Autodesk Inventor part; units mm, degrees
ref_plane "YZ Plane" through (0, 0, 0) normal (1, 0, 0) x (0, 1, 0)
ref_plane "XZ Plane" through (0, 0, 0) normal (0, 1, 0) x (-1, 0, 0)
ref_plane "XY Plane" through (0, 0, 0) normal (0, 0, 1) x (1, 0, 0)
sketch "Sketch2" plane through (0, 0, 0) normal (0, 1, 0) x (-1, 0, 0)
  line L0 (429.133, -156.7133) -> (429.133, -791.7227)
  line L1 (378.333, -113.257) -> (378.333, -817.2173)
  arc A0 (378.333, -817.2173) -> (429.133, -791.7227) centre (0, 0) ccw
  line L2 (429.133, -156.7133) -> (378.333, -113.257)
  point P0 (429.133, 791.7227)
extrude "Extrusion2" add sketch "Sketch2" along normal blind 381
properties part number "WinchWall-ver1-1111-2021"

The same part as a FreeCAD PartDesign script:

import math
import FreeCAD as App
import Part
import Sketcher

V = App.Vector
Q = App.Units.Quantity

doc = App.newDocument("Part")
body = doc.addObject("PartDesign::Body", "Body")

# Sketch on XZ plane
sketch1 = body.newObject("Sketcher::SketchObject", "Sketch")
sketch1.AttachmentSupport = (doc.getObject("XZ_Plane"), [""])
sketch1.MapMode = "FlatFace"
sketch1.addGeometry(Part.LineSegment(V(-429, -792, 0), V(-429, -157, 0)), False)
sketch1.addGeometry(Part.LineSegment(V(-429, -157, 0), V(-378, -113, 0)), False)
sketch1.addGeometry(Part.LineSegment(V(-378, -113, 0), V(-378, -817, 0)), False)
sketch1.addGeometry(Part.ArcOfCircle(Part.Circle(V(0, 0, 0), V(0, 0, 1), 901), math.radians(-118.46), math.radians(-114.84)), False)
sketch1.addConstraint(Sketcher.Constraint("Coincident", 0, 2, 1, 1))
sketch1.addConstraint(Sketcher.Constraint("Coincident", 1, 2, 2, 1))
sketch1.addConstraint(Sketcher.Constraint("Coincident", 2, 2, 3, 2))
sketch1.addConstraint(Sketcher.Constraint("Coincident", 3, 1, 0, 1))
sketch1.addConstraint(Sketcher.Constraint("Vertical", 0))
sketch1.addConstraint(Sketcher.Constraint("Vertical", 2))
sketch1.addConstraint(Sketcher.Constraint("DistanceX", 0, 2, 1, 2, Q("2 in")))
sketch1.addConstraint(Sketcher.Constraint("Radius", 3, Q("35.4543 in")))
sketch1.addConstraint(Sketcher.Constraint("DistanceX", 0, 2, -1, 1, Q("16.895 in")))
sketch1.addConstraint(Sketcher.Constraint("DistanceY", 0, 1, 0, 2, 635.0094))
sketch1.addConstraint(Sketcher.Constraint("DistanceY", 2, 2, 2, 1, 703.9603))
sketch1.addConstraint(Sketcher.Constraint("DistanceY", 2, 2, -1, 1, Q("32.1739 in")))
sketch1.addConstraint(Sketcher.Constraint("DistanceY", 2, 2, 0, 2, Q("26.0041 in")))
pad1 = body.newObject("PartDesign::Pad", "Pad")
pad1.Profile = sketch1
pad1.Length = Q("15 in")
pad1.Reversed = True

doc.recompute()
